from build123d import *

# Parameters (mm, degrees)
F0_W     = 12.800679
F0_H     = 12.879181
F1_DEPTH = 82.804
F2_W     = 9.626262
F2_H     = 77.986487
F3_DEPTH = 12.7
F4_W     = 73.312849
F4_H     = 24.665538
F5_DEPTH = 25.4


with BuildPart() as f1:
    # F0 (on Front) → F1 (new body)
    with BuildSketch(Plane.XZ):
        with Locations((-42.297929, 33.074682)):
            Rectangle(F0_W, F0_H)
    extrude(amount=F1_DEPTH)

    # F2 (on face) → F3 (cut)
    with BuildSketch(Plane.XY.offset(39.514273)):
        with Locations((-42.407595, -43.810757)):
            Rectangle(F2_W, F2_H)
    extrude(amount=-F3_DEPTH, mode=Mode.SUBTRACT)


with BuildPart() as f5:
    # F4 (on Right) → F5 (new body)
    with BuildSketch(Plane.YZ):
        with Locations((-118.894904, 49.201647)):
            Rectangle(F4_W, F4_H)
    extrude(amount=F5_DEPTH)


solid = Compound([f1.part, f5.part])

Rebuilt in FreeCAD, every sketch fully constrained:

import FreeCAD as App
import Part
import Sketcher
from FreeCAD import Vector
Q = App.Units.Quantity


def add_polygon(sketch, points):
    """Adds a closed chain of lines whose ends are joined by coincident constraints."""
    first, n = sketch.GeometryCount, len(points)
    for a, b in zip(points, points[1:] + points[:1]):
        sketch.addGeometry(Part.LineSegment(App.Vector(*a, 0), App.Vector(*b, 0)), False)
    for i in range(n):
        sketch.addConstraint(Sketcher.Constraint("Coincident", first + i, 2, first + (i + 1) % n, 1))

doc = App.newDocument("Part")
body = doc.addObject("PartDesign::Body", "Body")

# Sketch on XZ plane
sketch1 = body.newObject("Sketcher::SketchObject", "Sketch")
sketch1.AttachmentSupport = (doc.getObject("XZ_Plane"), [""])
sketch1.MapMode = "FlatFace"
add_polygon(sketch1, [(-49, 40), (-49, 27), (-36, 27), (-36, 40)])  # lines 0-3
sketch1.addConstraint([
    Sketcher.Constraint("Vertical", 0),
    Sketcher.Constraint("Horizontal", 1),
    Sketcher.Constraint("Vertical", 2),
    Sketcher.Constraint("Horizontal", 3),
    Sketcher.Constraint("DistanceX", 1, 1, 1, 2, Q("12.800679 mm")),
    Sketcher.Constraint("DistanceY", 0, 2, 0, 1, Q("12.879181 mm")),
    Sketcher.Constraint("DistanceX", 0, 2, -1, 1, Q("48.698268 mm")),
    Sketcher.Constraint("DistanceY", -1, 1, 0, 2, Q("26.635092 mm")),
])
pad1 = body.newObject("PartDesign::Pad", "Pad")
pad1.Profile = sketch1
pad1.Length = Q("3.26 in")

# Sketch on XY plane
sketch2 = body.newObject("Sketcher::SketchObject", "Sketch001")
sketch2.AttachmentSupport = (doc.getObject("XY_Plane"), [""])
sketch2.MapMode = "FlatFace"
sketch2.AttachmentOffset = App.Placement(Vector(0, 0, 39.514273), App.Rotation())
add_polygon(sketch2, [(-47, -5), (-47, -83), (-38, -83), (-38, -5)])  # lines 0-3
sketch2.addConstraint([
    Sketcher.Constraint("Vertical", 0),
    Sketcher.Constraint("Horizontal", 1),
    Sketcher.Constraint("Vertical", 2),
    Sketcher.Constraint("Horizontal", 3),
    Sketcher.Constraint("DistanceY", 0, 2, -1, 1, Q("3.26 in")),
    Sketcher.Constraint("DistanceX", 1, 1, 1, 2, Q("9.626262 mm")),
    Sketcher.Constraint("DistanceY", 0, 2, 0, 1, Q("77.986487 mm")),
    Sketcher.Constraint("DistanceX", 0, 2, -1, 1, Q("47.220726 mm")),
])
pocket1 = body.newObject("PartDesign::Pocket", "Pocket")
pocket1.Profile = sketch2
pocket1.Length = Q("0.5 in")
body2 = doc.addObject("PartDesign::Body", "Body001")

# Sketch on YZ plane
sketch3 = body2.newObject("Sketcher::SketchObject", "Sketch002")
sketch3.AttachmentSupport = (doc.getObject("YZ_Plane001"), [""])
sketch3.MapMode = "FlatFace"
add_polygon(sketch3, [(-156, 62), (-156, 37), (-82, 37), (-82, 62)])  # lines 0-3
sketch3.addConstraint([
    Sketcher.Constraint("Vertical", 0),
    Sketcher.Constraint("Horizontal", 1),
    Sketcher.Constraint("Vertical", 2),
    Sketcher.Constraint("Horizontal", 3),
    Sketcher.Constraint("DistanceX", 1, 1, 1, 2, Q("73.312849 mm")),
    Sketcher.Constraint("DistanceY", 0, 2, 0, 1, Q("24.665538 mm")),
    Sketcher.Constraint("DistanceX", 0, 2, -1, 1, Q("155.551329 mm")),
    Sketcher.Constraint("DistanceY", -1, 1, 0, 2, Q("36.868878 mm")),
])
pad2 = body2.newObject("PartDesign::Pad", "Pad001")
pad2.Profile = sketch3
pad2.Length = Q("1 in")

doc.recompute()
